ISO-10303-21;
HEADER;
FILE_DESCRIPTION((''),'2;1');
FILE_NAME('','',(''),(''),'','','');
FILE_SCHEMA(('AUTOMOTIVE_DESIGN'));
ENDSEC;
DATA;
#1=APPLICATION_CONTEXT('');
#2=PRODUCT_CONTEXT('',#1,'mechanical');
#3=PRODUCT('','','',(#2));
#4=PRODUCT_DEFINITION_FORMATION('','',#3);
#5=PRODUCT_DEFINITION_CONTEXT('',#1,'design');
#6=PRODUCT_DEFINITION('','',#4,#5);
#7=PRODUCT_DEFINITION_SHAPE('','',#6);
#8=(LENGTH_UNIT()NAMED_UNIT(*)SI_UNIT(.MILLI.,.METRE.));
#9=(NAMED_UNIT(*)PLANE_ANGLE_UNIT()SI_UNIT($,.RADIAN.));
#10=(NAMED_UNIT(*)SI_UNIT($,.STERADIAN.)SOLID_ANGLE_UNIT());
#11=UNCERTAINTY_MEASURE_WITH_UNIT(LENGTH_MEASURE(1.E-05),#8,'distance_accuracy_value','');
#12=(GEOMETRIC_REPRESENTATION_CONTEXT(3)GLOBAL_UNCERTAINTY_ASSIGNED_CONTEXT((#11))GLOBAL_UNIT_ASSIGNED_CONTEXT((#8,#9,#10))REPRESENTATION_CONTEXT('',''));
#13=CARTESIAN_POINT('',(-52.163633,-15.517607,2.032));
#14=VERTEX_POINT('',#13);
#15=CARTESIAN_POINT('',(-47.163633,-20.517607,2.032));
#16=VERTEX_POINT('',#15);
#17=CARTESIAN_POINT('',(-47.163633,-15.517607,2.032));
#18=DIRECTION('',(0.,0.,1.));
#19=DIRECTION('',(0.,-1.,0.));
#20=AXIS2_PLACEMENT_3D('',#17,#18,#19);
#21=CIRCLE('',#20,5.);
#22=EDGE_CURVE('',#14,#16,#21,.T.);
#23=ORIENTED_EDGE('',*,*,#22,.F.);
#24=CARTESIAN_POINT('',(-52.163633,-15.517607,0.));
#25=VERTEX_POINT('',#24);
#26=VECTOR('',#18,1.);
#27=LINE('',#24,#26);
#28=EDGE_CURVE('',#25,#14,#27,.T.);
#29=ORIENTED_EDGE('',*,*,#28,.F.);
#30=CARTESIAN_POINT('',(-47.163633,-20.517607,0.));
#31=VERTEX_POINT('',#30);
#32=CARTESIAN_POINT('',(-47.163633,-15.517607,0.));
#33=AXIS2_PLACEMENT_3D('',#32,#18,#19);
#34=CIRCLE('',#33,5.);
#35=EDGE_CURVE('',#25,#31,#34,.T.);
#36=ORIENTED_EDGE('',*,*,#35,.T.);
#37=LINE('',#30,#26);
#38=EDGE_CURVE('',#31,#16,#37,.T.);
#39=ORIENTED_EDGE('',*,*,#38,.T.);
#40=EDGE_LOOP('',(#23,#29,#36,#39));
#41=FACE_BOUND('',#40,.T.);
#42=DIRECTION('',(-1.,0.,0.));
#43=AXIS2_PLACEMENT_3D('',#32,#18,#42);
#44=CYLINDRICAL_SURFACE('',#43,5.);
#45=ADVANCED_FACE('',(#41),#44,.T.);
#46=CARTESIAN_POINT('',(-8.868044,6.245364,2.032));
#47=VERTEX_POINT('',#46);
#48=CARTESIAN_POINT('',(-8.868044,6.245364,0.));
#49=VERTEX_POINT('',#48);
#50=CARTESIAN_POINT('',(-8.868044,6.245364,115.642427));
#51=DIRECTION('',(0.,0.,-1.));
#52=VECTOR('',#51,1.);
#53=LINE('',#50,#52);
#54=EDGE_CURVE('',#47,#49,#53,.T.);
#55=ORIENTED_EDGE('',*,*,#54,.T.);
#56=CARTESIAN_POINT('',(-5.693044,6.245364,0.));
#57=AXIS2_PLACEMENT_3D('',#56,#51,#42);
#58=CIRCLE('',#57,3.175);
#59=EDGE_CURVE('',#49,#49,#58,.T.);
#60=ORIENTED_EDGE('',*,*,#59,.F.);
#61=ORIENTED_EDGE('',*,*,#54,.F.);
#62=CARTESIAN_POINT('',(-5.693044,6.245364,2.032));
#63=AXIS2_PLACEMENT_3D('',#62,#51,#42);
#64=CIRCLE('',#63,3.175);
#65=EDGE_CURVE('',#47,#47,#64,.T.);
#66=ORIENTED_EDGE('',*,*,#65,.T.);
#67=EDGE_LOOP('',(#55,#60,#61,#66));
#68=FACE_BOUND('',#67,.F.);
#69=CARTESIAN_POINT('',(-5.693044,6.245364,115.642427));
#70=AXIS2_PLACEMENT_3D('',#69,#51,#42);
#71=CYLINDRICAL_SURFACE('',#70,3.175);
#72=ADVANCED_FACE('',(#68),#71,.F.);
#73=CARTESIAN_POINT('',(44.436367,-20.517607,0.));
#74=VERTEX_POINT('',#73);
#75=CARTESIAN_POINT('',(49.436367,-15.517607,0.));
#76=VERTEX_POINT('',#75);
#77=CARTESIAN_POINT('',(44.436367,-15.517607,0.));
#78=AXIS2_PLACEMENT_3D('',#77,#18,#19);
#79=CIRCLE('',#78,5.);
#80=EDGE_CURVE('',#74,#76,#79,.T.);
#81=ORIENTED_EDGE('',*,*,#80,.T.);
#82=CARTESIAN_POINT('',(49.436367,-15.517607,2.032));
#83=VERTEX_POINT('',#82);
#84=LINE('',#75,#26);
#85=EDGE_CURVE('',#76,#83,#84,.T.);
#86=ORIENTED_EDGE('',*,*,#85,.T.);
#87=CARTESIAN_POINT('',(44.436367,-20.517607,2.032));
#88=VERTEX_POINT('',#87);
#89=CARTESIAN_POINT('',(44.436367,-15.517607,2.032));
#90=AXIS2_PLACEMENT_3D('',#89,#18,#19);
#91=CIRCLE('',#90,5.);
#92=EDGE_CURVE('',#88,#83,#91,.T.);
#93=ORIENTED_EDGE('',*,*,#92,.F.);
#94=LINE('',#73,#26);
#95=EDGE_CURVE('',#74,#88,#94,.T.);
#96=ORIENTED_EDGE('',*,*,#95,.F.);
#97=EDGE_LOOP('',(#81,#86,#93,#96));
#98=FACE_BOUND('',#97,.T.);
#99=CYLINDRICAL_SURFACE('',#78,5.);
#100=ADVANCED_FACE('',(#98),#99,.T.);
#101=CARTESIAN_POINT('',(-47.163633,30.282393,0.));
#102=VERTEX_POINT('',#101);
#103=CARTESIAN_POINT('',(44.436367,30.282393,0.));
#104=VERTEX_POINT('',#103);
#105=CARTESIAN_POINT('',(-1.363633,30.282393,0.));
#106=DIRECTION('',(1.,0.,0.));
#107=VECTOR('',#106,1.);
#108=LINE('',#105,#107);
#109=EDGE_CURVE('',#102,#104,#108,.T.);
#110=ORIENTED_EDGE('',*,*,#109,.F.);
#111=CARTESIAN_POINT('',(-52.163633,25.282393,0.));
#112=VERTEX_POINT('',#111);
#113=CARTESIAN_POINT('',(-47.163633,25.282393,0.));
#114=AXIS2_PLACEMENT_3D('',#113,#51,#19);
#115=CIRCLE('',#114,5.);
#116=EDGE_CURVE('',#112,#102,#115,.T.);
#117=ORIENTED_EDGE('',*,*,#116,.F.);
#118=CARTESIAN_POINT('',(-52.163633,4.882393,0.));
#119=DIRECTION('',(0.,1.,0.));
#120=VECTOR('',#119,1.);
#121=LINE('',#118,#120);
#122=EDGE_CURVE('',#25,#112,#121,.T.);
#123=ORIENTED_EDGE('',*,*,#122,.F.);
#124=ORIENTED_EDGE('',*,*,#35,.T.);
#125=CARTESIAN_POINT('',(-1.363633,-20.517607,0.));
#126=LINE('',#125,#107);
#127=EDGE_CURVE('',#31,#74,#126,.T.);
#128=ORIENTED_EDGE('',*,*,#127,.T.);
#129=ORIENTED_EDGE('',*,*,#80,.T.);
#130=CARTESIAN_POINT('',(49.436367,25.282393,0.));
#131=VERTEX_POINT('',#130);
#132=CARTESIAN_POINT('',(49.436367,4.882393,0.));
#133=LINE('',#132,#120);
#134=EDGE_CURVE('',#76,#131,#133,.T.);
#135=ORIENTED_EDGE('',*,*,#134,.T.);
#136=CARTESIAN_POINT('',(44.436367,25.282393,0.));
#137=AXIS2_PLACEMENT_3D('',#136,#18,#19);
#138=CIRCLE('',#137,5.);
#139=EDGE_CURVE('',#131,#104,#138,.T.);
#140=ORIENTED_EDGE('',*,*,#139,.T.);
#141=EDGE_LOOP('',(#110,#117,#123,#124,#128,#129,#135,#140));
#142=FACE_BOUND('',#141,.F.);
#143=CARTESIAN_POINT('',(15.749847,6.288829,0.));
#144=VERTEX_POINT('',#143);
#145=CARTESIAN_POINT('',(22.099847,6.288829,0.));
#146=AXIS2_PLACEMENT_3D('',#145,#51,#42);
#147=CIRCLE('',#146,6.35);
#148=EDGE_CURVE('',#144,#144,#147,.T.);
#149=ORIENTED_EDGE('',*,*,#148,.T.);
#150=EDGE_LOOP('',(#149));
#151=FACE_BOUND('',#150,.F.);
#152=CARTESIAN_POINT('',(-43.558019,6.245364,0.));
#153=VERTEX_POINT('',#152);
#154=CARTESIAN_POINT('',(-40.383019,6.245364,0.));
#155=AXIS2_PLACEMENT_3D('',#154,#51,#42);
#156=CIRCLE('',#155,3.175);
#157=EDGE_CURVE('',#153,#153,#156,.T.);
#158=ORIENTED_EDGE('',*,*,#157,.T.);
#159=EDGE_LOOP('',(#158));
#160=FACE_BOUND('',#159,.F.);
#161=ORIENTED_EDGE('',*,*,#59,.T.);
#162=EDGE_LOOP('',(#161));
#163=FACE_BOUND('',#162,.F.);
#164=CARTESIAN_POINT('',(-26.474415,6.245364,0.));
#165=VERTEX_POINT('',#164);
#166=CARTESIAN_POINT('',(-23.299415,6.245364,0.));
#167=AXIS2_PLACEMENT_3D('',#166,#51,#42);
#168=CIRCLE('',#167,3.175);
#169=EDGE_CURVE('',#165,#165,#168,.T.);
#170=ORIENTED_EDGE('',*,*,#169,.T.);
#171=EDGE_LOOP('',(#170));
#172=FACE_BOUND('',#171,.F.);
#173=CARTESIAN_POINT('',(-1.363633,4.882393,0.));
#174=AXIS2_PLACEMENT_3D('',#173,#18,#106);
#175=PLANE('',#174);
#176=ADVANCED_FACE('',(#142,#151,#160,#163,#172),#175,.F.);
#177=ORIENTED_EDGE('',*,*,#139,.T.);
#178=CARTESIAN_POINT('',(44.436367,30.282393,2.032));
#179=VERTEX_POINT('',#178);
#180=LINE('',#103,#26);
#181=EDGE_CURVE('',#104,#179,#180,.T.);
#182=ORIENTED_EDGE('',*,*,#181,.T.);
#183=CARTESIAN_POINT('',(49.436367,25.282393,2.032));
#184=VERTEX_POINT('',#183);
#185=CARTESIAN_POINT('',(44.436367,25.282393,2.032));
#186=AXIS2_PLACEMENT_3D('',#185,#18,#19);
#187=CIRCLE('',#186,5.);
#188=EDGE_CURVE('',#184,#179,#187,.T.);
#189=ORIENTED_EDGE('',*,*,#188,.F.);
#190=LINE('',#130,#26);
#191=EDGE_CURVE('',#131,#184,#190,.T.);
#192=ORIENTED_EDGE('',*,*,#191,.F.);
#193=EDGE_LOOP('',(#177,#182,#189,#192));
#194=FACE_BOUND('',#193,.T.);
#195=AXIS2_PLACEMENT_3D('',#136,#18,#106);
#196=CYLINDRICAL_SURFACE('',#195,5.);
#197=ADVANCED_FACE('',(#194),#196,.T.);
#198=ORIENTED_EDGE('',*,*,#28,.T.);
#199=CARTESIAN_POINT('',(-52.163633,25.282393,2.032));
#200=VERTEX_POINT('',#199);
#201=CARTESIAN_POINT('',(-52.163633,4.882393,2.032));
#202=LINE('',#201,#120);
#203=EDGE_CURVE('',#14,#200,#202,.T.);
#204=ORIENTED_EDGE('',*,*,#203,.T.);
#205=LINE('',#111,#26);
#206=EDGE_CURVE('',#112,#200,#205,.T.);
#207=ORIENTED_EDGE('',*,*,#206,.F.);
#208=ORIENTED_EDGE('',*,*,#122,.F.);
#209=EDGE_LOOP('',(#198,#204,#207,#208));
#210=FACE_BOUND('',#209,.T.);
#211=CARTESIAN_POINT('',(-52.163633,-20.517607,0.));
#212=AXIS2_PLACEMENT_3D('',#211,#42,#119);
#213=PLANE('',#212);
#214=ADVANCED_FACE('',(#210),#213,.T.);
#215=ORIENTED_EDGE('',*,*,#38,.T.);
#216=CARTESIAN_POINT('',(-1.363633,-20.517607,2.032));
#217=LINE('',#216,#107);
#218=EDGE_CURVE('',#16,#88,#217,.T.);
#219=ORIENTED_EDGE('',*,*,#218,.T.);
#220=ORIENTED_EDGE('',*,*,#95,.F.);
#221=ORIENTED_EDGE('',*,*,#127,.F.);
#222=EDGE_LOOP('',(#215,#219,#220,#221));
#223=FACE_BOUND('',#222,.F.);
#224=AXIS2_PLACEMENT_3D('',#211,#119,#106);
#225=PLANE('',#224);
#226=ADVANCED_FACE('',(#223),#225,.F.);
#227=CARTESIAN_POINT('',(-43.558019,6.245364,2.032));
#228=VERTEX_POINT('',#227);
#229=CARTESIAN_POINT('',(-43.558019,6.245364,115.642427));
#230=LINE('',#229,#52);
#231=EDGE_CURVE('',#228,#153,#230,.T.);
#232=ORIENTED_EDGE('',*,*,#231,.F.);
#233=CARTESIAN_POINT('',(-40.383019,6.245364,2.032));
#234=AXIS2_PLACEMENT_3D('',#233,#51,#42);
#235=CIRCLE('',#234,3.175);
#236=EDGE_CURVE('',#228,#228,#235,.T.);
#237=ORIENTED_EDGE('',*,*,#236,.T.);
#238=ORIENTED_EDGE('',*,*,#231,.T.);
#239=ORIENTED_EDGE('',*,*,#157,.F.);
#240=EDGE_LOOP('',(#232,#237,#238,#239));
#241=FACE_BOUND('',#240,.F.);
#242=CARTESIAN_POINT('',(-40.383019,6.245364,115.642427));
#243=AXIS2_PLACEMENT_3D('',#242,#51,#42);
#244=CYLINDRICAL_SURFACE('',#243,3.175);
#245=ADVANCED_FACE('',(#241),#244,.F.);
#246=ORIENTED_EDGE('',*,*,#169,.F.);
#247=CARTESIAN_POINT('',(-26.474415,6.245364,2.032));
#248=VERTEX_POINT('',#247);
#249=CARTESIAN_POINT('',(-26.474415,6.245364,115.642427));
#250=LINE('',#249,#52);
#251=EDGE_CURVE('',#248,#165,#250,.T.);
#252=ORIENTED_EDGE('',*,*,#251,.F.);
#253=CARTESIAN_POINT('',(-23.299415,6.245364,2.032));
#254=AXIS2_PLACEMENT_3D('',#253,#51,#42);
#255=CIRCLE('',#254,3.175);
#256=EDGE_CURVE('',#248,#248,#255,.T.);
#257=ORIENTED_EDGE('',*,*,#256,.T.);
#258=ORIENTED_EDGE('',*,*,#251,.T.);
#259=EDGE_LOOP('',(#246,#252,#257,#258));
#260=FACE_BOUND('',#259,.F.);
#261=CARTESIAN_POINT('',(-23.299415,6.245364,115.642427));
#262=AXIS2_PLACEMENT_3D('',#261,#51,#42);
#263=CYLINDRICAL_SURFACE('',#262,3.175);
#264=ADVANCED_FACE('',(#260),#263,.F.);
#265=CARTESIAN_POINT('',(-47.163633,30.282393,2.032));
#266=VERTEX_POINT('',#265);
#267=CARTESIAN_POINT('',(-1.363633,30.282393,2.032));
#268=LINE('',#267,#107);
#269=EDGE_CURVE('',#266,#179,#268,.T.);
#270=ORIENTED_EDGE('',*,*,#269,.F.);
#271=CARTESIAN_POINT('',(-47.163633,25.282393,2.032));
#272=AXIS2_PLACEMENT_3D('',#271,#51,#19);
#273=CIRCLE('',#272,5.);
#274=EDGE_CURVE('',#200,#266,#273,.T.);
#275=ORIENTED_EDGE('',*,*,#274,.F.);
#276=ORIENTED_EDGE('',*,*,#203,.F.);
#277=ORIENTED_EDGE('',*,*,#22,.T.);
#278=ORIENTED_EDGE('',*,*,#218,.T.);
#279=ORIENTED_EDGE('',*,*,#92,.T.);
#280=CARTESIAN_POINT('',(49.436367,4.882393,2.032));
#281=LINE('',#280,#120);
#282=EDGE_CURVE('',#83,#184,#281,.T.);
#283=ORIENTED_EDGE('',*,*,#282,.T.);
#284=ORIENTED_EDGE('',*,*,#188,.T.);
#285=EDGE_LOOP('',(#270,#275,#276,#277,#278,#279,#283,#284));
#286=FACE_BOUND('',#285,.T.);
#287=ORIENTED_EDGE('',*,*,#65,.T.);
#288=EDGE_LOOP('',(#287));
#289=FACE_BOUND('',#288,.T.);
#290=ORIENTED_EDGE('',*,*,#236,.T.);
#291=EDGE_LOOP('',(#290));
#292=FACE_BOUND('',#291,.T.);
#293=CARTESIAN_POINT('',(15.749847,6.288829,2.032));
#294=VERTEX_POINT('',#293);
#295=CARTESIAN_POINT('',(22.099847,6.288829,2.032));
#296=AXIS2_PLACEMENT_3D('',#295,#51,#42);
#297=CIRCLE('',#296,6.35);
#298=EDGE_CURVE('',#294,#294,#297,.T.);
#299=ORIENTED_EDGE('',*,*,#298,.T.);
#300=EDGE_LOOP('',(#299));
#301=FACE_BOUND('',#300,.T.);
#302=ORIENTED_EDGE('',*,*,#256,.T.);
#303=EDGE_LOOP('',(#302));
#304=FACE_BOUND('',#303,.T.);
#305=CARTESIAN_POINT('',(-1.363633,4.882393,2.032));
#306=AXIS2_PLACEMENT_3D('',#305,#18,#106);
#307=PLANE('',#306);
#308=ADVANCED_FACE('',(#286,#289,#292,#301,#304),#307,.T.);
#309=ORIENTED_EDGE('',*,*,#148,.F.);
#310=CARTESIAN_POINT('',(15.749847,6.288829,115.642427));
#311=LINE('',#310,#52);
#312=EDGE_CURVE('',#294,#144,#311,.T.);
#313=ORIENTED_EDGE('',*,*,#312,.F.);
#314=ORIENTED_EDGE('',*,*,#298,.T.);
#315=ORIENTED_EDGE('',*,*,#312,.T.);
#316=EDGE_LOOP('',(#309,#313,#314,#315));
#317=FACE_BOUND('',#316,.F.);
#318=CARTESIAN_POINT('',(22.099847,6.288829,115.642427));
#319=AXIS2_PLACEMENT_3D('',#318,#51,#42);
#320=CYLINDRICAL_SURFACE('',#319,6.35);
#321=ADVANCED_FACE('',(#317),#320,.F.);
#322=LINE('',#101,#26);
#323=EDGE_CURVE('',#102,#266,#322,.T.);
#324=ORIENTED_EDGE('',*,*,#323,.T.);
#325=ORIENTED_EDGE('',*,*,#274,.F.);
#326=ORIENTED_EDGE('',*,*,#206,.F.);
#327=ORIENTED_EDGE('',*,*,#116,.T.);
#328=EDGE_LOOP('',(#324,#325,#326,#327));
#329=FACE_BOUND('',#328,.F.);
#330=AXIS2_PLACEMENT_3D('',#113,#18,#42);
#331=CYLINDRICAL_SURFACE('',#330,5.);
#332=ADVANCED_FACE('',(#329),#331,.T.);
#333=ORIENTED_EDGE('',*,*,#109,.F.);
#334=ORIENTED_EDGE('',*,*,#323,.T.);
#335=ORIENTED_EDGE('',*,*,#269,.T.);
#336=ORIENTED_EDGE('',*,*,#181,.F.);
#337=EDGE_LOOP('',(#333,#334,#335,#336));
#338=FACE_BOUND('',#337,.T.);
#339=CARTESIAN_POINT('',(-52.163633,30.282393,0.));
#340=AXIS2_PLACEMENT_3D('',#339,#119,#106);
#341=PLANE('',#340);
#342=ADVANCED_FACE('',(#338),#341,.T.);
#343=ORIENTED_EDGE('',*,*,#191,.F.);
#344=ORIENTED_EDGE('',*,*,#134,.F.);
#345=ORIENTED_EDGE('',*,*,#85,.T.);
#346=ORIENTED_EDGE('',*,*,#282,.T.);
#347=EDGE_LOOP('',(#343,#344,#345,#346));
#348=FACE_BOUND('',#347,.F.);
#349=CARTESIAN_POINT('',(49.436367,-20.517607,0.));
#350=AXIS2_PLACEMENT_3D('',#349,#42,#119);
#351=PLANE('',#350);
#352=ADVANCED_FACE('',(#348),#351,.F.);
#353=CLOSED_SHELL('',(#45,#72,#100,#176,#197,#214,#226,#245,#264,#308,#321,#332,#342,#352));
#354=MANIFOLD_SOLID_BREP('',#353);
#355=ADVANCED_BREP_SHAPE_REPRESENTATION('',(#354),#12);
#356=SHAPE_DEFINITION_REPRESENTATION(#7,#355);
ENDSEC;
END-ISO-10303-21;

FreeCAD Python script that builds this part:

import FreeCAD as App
import Part
import Sketcher

V = App.Vector
Q = App.Units.Quantity


def edges_at(feature, points):
    """Names of the edges that pass closest to the given points."""
    edges = feature.Shape.Edges
    near = lambda p: min(range(len(edges)), key=lambda i: edges[i].distToShape(Part.Vertex(*p))[0])
    return sorted({f"Edge{near(p) + 1}" for p in points})

doc = App.newDocument("Part")
body = doc.addObject("PartDesign::Body", "Body")

# Sketch on XY plane
sketch1 = body.newObject("Sketcher::SketchObject", "Sketch")
sketch1.AttachmentSupport = (doc.getObject("XY_Plane"), [""])
sketch1.MapMode = "FlatFace"
sketch1.addGeometry([
    Part.LineSegment(V(-52.163633, 30.282393, 0), V(-52.163633, -20.517607, 0)),
    Part.LineSegment(V(-52.163633, -20.517607, 0), V(49.436367, -20.517607, 0)),
    Part.LineSegment(V(49.436367, -20.517607, 0), V(49.436367, 30.282393, 0)),
    Part.LineSegment(V(49.436367, 30.282393, 0), V(-52.163633, 30.282393, 0)),
], False)
sketch1.addConstraint([
    Sketcher.Constraint("Coincident", 0, 2, 1, 1),
    Sketcher.Constraint("Coincident", 1, 2, 2, 1),
    Sketcher.Constraint("Coincident", 2, 2, 3, 1),
    Sketcher.Constraint("Coincident", 3, 2, 0, 1),
    Sketcher.Constraint("Vertical", 0),
    Sketcher.Constraint("Horizontal", 1),
    Sketcher.Constraint("Vertical", 2),
    Sketcher.Constraint("Horizontal", 3),
    Sketcher.Constraint("DistanceX", 1, 1, 1, 2, Q("4 in")),
    Sketcher.Constraint("DistanceY", 0, 2, 0, 1, Q("2 in")),
    Sketcher.Constraint("DistanceX", 0, 2, -1, 1, 52.163633),
    Sketcher.Constraint("DistanceY", 0, 2, -1, 1, 20.517607),
])
pad1 = body.newObject("PartDesign::Pad", "Pad")
pad1.Profile = sketch1
pad1.Length = Q("0.08 in")
doc.recompute()

fillet = body.newObject("PartDesign::Fillet", "Fillet")
fillet.Base = (pad1, edges_at(pad1, [
    (-52.164, 30.282, 1.016),
    (49.436, 30.282, 1.016),
    (-52.164, -20.518, 1.016),
    (49.436, -20.518, 1.016),
]))
fillet.Radius = 5

# Sketch on XY plane
sketch2 = body.newObject("Sketcher::SketchObject", "Sketch001")
sketch2.AttachmentSupport = (doc.getObject("XY_Plane"), [""])
sketch2.MapMode = "FlatFace"
sketch2.AttachmentOffset = App.Placement(V(0, 0, 0.08 * 25.4), App.Rotation())
sketch2.addGeometry([
    Part.Circle(V(-40.383019, 6.245364, 0), V(0, 0, 1), 3.175),
    Part.Circle(V(-23.299415, 6.245364, 0), V(0, 0, 1), 3.175),
    Part.Circle(V(-5.693044, 6.245364, 0), V(0, 0, 1), 3.175),
], False)
sketch2.addConstraint([
    Sketcher.Constraint("Equal", 0, 1),
    Sketcher.Constraint("Equal", 1, 2),
    Sketcher.Constraint("Horizontal", 0, 3, 1, 3),
    Sketcher.Constraint("Horizontal", 1, 3, 2, 3),
    Sketcher.Constraint("Diameter", 0, Q("0.25 in")),
    Sketcher.Constraint("DistanceX", 1, 3, -1, 1, Q("0.9172998 in")),
    Sketcher.Constraint("DistanceX", 0, 3, -1, 1, 40.383019),
    Sketcher.Constraint("DistanceX", 1, 3, 2, 3, 17.606371),
    Sketcher.Constraint("DistanceY", -1, 1, 0, 3, 6.245364),
])
doc.recompute()
hole = body.newObject("PartDesign::Hole", "Hole")
hole.Profile = sketch2
hole.ThreadType = "None"
hole.Diameter = Q("0.25 in")
hole.DepthType = "ThroughAll"

# Sketch on XY plane
sketch3 = body.newObject("Sketcher::SketchObject", "Sketch002")
sketch3.AttachmentSupport = (doc.getObject("XY_Plane"), [""])
sketch3.MapMode = "FlatFace"
sketch3.AttachmentOffset = App.Placement(V(0, 0, 0.08 * 25.4), App.Rotation())
sketch3.addGeometry(Part.Circle(V(22.099847, 6.288829, 0), V(0, 0, 1), 6.35), False)
sketch3.addConstraint([
    Sketcher.Constraint("Diameter", 0, Q("0.5 in")),
    Sketcher.Constraint("DistanceY", -1, 1, 0, 3, 6.288829),
    Sketcher.Constraint("DistanceX", -1, 1, 0, 3, 22.099847),
])
doc.recompute()
hole2 = body.newObject("PartDesign::Hole", "Hole001")
hole2.Profile = sketch3
hole2.ThreadType = "None"
hole2.Diameter = Q("0.5 in")
hole2.DepthType = "ThroughAll"

doc.recompute()
